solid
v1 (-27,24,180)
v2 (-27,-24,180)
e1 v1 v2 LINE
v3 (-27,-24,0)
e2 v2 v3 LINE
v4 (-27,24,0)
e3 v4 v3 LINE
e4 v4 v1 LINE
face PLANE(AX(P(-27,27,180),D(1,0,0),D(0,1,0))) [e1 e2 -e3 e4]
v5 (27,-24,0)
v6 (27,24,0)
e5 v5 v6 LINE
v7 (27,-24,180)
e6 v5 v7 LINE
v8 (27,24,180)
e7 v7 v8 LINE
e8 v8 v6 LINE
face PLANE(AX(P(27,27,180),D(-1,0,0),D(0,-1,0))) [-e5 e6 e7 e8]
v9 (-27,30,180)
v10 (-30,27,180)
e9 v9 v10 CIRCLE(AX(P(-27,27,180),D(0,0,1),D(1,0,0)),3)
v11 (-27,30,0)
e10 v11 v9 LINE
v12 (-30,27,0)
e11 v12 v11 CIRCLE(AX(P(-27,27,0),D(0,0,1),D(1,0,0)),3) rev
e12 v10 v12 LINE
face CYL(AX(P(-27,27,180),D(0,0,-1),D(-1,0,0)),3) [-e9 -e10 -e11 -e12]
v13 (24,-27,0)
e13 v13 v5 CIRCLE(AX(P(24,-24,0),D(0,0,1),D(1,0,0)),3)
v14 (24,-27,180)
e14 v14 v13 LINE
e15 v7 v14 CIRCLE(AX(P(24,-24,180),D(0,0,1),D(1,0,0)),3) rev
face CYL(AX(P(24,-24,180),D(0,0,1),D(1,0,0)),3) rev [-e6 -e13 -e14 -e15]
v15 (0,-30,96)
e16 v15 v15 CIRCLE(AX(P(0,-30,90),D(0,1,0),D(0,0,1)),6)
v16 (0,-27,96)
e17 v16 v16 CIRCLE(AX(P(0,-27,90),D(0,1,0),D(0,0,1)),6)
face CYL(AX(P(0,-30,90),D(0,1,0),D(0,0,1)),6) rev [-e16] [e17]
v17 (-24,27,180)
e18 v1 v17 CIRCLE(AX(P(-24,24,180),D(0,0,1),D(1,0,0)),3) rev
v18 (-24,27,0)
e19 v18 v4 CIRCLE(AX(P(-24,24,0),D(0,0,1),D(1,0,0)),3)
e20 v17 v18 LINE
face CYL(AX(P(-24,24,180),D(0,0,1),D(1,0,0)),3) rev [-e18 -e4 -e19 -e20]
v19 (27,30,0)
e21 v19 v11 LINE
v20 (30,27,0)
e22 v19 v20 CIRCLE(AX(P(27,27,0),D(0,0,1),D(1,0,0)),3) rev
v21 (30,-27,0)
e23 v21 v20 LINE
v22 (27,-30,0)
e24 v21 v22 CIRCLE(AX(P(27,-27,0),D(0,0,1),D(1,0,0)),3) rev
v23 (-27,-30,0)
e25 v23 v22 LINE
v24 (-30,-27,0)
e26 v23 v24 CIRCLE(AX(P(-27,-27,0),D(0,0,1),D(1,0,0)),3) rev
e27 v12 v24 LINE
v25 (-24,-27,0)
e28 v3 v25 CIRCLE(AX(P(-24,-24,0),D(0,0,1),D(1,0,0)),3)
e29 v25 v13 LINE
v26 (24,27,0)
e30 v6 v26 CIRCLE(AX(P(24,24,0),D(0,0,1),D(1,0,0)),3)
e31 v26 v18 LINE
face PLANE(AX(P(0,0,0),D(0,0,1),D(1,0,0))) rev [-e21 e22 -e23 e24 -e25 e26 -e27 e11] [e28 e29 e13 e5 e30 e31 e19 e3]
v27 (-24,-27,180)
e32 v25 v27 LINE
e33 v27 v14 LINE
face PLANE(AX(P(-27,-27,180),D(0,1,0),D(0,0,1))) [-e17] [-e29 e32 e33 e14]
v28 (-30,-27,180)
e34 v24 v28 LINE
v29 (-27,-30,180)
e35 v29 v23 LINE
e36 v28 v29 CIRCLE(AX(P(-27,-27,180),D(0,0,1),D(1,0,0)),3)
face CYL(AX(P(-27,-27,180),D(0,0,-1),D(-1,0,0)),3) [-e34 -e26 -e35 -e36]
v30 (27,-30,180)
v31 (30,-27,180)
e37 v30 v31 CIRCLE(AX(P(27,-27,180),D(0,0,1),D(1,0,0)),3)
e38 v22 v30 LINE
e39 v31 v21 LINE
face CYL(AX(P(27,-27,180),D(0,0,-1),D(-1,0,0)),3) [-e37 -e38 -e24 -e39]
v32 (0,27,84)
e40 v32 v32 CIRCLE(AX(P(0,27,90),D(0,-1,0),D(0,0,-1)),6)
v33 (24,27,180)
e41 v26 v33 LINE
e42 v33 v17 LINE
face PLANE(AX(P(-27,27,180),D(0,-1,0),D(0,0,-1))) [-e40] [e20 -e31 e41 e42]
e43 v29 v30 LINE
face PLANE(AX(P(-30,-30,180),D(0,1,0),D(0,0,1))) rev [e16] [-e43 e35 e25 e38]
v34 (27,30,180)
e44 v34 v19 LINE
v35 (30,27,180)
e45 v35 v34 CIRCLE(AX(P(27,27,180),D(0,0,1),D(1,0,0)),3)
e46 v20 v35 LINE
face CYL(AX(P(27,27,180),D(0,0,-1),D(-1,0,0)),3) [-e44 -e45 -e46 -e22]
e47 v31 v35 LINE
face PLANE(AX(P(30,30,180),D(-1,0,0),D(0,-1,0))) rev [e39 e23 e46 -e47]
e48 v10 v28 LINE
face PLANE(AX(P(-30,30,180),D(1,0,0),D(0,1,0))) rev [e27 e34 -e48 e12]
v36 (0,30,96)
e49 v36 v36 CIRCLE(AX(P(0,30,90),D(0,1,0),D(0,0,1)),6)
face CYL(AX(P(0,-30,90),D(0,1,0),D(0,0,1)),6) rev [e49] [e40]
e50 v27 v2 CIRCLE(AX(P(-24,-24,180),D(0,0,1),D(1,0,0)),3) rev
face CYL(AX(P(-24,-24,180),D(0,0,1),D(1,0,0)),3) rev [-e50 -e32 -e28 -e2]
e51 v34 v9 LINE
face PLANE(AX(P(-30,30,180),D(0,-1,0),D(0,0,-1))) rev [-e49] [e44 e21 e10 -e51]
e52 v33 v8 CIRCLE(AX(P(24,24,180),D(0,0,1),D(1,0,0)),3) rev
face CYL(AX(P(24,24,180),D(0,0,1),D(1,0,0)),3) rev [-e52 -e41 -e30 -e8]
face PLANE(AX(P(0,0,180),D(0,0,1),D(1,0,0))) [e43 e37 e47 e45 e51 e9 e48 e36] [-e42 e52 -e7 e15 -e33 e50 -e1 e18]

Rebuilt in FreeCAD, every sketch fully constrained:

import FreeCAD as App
import Part
import Sketcher

V = App.Vector
Q = App.Units.Quantity


def edges_at(feature, points):
    """Names of the edges that pass closest to the given points."""
    edges = feature.Shape.Edges
    near = lambda p: min(range(len(edges)), key=lambda i: edges[i].distToShape(Part.Vertex(*p))[0])
    return sorted({f"Edge{near(p) + 1}" for p in points})


def add_polygon(sketch, points):
    """Adds a closed chain of lines whose ends are joined by coincident constraints."""
    first, n = sketch.GeometryCount, len(points)
    for a, b in zip(points, points[1:] + points[:1]):
        sketch.addGeometry(Part.LineSegment(App.Vector(*a, 0), App.Vector(*b, 0)), False)
    for i in range(n):
        sketch.addConstraint(Sketcher.Constraint("Coincident", first + i, 2, first + (i + 1) % n, 1))

doc = App.newDocument("Part")
params = doc.addObject("Spreadsheet::Sheet", "Params")
for row, (alias, value) in enumerate([
    ("sketch1_width", "60 mm"),
    ("sketch1_width2", "54 mm"),
    ("pad1_length", "180 mm"),
    ("fillet_radius", "3 mm"),
    ("sketch2_diameter", "12 mm"),
], start=1):
    params.set(f"A{row}", alias)
    params.set(f"B{row}", "=" + value)
    params.setAlias(f"B{row}", alias)

body = doc.addObject("PartDesign::Body", "Body")

sketch1 = doc.addObject("Sketcher::SketchObject", "Sketch")
body.addObject(sketch1)
sketch1.AttachmentSupport = (doc.XY_Plane, [""])
sketch1.MapMode = "FlatFace"
add_polygon(sketch1, [(-30, 30), (-30, -30), (30, -30), (30, 30)])
add_polygon(sketch1, [(27, -27), (-27, -27), (-27, 27), (27, 27)])
sketch1.addConstraint(Sketcher.Constraint("Vertical", 0))
sketch1.addConstraint(Sketcher.Constraint("Horizontal", 1))
sketch1.addConstraint(Sketcher.Constraint("Vertical", 2))
sketch1.addConstraint(Sketcher.Constraint("Horizontal", 3))
sketch1.addConstraint(Sketcher.Constraint("Horizontal", 4))
sketch1.addConstraint(Sketcher.Constraint("Vertical", 5))
sketch1.addConstraint(Sketcher.Constraint("Horizontal", 6))
sketch1.addConstraint(Sketcher.Constraint("Vertical", 7))
sketch1.addConstraint(Sketcher.Constraint("Symmetric", 0, 2, 2, 2, -1, 1))
sketch1.addConstraint(Sketcher.Constraint("Symmetric", 4, 2, 6, 2, -1, 1))
sketch1.addConstraint(Sketcher.Constraint("Equal", 3, 0))
sketch1.addConstraint(Sketcher.Constraint("Equal", 6, 5))
sketch1.addConstraint(Sketcher.Constraint("DistanceX", 1, 1, 1, 2, Q("60 mm")))
sketch1.addConstraint(Sketcher.Constraint("DistanceX", 4, 2, 4, 1, Q("54 mm")))
sketch1.setExpression("Constraints[20]", "Params.sketch1_width")
sketch1.setExpression("Constraints[21]", "Params.sketch1_width2")
pad1 = doc.addObject("PartDesign::Pad", "Pad")
body.addObject(pad1)
pad1.Profile = sketch1
pad1.setExpression("Length", "Params.pad1_length")
doc.recompute()

fillet = doc.addObject("PartDesign::Fillet", "Fillet")
body.addObject(fillet)
fillet.Base = (pad1, edges_at(pad1, [
    (27, -27, 90),
    (27, 27, 90),
    (-27, 27, 90),
    (-27, -27, 90),
    (30, -30, 90),
    (-30, -30, 90),
    (-30, 30, 90),
    (30, 30, 90),
]))
fillet.setExpression("Radius", "Params.fillet_radius")

sketch2 = doc.addObject("Sketcher::SketchObject", "Sketch001")
body.addObject(sketch2)
sketch2.AttachmentSupport = (doc.XZ_Plane, [""])
sketch2.MapMode = "FlatFace"
sketch2.addGeometry(Part.Circle(V(0, 90, 0), V(0, 0, 1), 6), False)
sketch2.addConstraint(Sketcher.Constraint("PointOnObject", 0, 3, -2))
sketch2.addConstraint(Sketcher.Constraint("Diameter", 0, Q("12 mm")))
sketch2.addConstraint(Sketcher.Constraint("DistanceY", -1, 1, 0, 3, Q("90 mm")))
sketch2.setExpression("Constraints[1]", "Params.sketch2_diameter")
pocket1 = doc.addObject("PartDesign::Pocket", "Pocket")
body.addObject(pocket1)
pocket1.Profile = sketch2
pocket1.Type = "ThroughAll"
pocket1.Midplane = True

doc.recompute()
